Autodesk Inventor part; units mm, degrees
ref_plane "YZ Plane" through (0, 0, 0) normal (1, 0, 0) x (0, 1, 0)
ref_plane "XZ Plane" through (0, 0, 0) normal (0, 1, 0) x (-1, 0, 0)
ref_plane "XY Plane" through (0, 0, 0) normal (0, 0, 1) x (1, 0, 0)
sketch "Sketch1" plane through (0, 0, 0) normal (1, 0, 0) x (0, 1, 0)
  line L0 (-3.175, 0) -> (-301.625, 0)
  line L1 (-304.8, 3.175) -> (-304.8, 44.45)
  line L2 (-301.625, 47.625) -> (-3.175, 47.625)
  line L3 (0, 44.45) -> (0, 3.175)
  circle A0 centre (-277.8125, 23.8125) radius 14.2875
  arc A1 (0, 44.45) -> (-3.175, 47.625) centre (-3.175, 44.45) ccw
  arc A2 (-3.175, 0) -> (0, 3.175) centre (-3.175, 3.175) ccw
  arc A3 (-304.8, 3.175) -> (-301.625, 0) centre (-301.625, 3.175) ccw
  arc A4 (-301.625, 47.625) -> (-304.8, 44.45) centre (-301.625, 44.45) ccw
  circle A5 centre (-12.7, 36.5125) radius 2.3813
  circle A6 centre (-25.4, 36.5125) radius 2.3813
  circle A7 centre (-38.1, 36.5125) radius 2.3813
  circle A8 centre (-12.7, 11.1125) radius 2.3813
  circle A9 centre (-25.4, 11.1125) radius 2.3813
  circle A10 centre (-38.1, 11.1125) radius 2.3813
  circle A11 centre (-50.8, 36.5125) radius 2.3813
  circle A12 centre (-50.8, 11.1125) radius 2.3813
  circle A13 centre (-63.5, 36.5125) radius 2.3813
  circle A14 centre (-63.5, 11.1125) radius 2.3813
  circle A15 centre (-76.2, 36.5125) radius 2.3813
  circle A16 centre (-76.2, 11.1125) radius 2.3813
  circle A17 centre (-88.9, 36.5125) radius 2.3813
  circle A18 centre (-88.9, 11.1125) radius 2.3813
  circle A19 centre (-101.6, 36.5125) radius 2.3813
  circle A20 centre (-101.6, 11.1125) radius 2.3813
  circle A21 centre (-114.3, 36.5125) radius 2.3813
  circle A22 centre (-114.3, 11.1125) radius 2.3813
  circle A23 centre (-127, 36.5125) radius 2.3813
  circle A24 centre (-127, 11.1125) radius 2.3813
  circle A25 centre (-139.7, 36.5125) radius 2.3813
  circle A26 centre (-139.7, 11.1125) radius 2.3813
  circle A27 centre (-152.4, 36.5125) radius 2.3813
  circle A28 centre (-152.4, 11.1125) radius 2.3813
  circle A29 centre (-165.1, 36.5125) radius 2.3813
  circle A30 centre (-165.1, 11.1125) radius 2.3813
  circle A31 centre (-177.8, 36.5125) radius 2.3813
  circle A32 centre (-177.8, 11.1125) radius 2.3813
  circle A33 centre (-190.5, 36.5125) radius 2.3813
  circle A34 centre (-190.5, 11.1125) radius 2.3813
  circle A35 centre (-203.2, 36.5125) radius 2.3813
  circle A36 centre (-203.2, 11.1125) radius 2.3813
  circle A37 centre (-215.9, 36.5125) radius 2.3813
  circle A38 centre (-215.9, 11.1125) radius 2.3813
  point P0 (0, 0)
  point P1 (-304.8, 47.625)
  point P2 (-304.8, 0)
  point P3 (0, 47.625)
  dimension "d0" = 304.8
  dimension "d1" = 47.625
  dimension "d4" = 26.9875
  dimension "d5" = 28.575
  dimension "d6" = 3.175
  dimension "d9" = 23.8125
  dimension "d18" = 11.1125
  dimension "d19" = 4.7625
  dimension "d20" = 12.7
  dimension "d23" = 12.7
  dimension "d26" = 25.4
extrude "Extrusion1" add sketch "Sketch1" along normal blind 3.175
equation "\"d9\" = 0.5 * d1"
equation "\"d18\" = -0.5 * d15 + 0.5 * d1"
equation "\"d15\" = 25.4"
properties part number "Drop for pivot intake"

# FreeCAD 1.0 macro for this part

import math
import FreeCAD as App
import Part
import Sketcher
from FreeCAD import Vector
Q = App.Units.Quantity

doc = App.newDocument("Part")
body = doc.addObject("PartDesign::Body", "Body")

# Sketch on YZ plane
sketch1 = body.newObject("Sketcher::SketchObject", "Sketch")
sketch1.AttachmentSupport = (doc.getObject("YZ_Plane"), [""])
sketch1.MapMode = "FlatFace"
sketch1.addGeometry([
    Part.LineSegment(Vector(-301.625, 0, 0), Vector(-3.175, 0, 0)),  # 0
    Part.ArcOfCircle(Part.Circle(Vector(-3.175, 3.175, 0), Vector(0, 0, 1), 3.175), math.radians(-90), math.radians(0)),  # 1
    Part.LineSegment(Vector(0, 3.175, 0), Vector(0, 44.45, 0)),  # 2
    Part.ArcOfCircle(Part.Circle(Vector(-3.175, 44.45, 0), Vector(0, 0, 1), 3.175), math.radians(0), math.radians(90)),  # 3
    Part.LineSegment(Vector(-3.175, 47.625, 0), Vector(-301.625, 47.625, 0)),  # 4
    Part.ArcOfCircle(Part.Circle(Vector(-301.625, 44.45, 0), Vector(0, 0, 1), 3.175), math.radians(90), math.radians(180)),  # 5
    Part.LineSegment(Vector(-304.8, 44.45, 0), Vector(-304.8, 3.175, 0)),  # 6
    Part.ArcOfCircle(Part.Circle(Vector(-301.625, 3.175, 0), Vector(0, 0, 1), 3.175), math.radians(180), math.radians(270)),  # 7
    Part.Circle(Vector(-215.9, 11.1125, 0), Vector(0, 0, 1), 2.3813),  # 8
    Part.Circle(Vector(-203.2, 11.1125, 0), Vector(0, 0, 1), 2.3813),  # 9
    Part.Circle(Vector(-190.5, 11.1125, 0), Vector(0, 0, 1), 2.3813),  # 10
    Part.Circle(Vector(-177.8, 11.1125, 0), Vector(0, 0, 1), 2.3813),  # 11
    Part.Circle(Vector(-165.1, 11.1125, 0), Vector(0, 0, 1), 2.3813),  # 12
    Part.Circle(Vector(-152.4, 11.1125, 0), Vector(0, 0, 1), 2.3813),  # 13
    Part.Circle(Vector(-139.7, 11.1125, 0), Vector(0, 0, 1), 2.3813),  # 14
    Part.Circle(Vector(-127, 11.1125, 0), Vector(0, 0, 1), 2.3813),  # 15
    Part.Circle(Vector(-114.3, 11.1125, 0), Vector(0, 0, 1), 2.3813),  # 16
    Part.Circle(Vector(-101.6, 11.1125, 0), Vector(0, 0, 1), 2.3813),  # 17
    Part.Circle(Vector(-88.9, 11.1125, 0), Vector(0, 0, 1), 2.3813),  # 18
    Part.Circle(Vector(-76.2, 11.1125, 0), Vector(0, 0, 1), 2.3813),  # 19
    Part.Circle(Vector(-63.5, 11.1125, 0), Vector(0, 0, 1), 2.3813),  # 20
    Part.Circle(Vector(-50.8, 11.1125, 0), Vector(0, 0, 1), 2.3813),  # 21
    Part.Circle(Vector(-38.1, 11.1125, 0), Vector(0, 0, 1), 2.3813),  # 22
    Part.Circle(Vector(-25.4, 11.1125, 0), Vector(0, 0, 1), 2.3813),  # 23
    Part.Circle(Vector(-12.7, 11.1125, 0), Vector(0, 0, 1), 2.3813),  # 24
    Part.Circle(Vector(-277.8125, 23.8125, 0), Vector(0, 0, 1), 14.2875),  # 25
    Part.Circle(Vector(-215.9, 36.5125, 0), Vector(0, 0, 1), 2.3813),  # 26
    Part.Circle(Vector(-203.2, 36.5125, 0), Vector(0, 0, 1), 2.3813),  # 27
    Part.Circle(Vector(-190.5, 36.5125, 0), Vector(0, 0, 1), 2.3813),  # 28
    Part.Circle(Vector(-177.8, 36.5125, 0), Vector(0, 0, 1), 2.3813),  # 29
    Part.Circle(Vector(-165.1, 36.5125, 0), Vector(0, 0, 1), 2.3813),  # 30
    Part.Circle(Vector(-152.4, 36.5125, 0), Vector(0, 0, 1), 2.3813),  # 31
    Part.Circle(Vector(-139.7, 36.5125, 0), Vector(0, 0, 1), 2.3813),  # 32
    Part.Circle(Vector(-127, 36.5125, 0), Vector(0, 0, 1), 2.3813),  # 33
    Part.Circle(Vector(-114.3, 36.5125, 0), Vector(0, 0, 1), 2.3813),  # 34
    Part.Circle(Vector(-101.6, 36.5125, 0), Vector(0, 0, 1), 2.3813),  # 35
    Part.Circle(Vector(-88.9, 36.5125, 0), Vector(0, 0, 1), 2.3813),  # 36
    Part.Circle(Vector(-76.2, 36.5125, 0), Vector(0, 0, 1), 2.3813),  # 37
    Part.Circle(Vector(-63.5, 36.5125, 0), Vector(0, 0, 1), 2.3813),  # 38
    Part.Circle(Vector(-50.8, 36.5125, 0), Vector(0, 0, 1), 2.3813),  # 39
    Part.Circle(Vector(-38.1, 36.5125, 0), Vector(0, 0, 1), 2.3813),  # 40
    Part.Circle(Vector(-25.4, 36.5125, 0), Vector(0, 0, 1), 2.3813),  # 41
    Part.Circle(Vector(-12.7, 36.5125, 0), Vector(0, 0, 1), 2.3813),  # 42
], False)
sketch1.addConstraint([
    Sketcher.Constraint("Tangent", 0, 2, 1, 1),
    Sketcher.Constraint("Tangent", 1, 2, 2, 1),
    Sketcher.Constraint("Tangent", 2, 2, 3, 1),
    Sketcher.Constraint("Tangent", 3, 2, 4, 1),
    Sketcher.Constraint("Tangent", 4, 2, 5, 1),
    Sketcher.Constraint("Tangent", 5, 2, 6, 1),
    Sketcher.Constraint("Tangent", 6, 2, 7, 1),
    Sketcher.Constraint("Tangent", 7, 2, 0, 1),
    Sketcher.Constraint("Horizontal", 0),
    Sketcher.Constraint("Vertical", 2),
    Sketcher.Constraint("Horizontal", 4),
    Sketcher.Constraint("Vertical", 6),
    Sketcher.Constraint("Equal", 1, 3),
    Sketcher.Constraint("Equal", 3, 5),
    Sketcher.Constraint("Equal", 5, 7),
    Sketcher.Constraint("Equal", 8, 9),
    Sketcher.Constraint("Equal", 9, 10),
    Sketcher.Constraint("Equal", 10, 11),
    Sketcher.Constraint("Equal", 11, 12),
    Sketcher.Constraint("Equal", 12, 13),
    Sketcher.Constraint("Equal", 13, 14),
    Sketcher.Constraint("Equal", 14, 15),
    Sketcher.Constraint("Equal", 15, 16),
    Sketcher.Constraint("Equal", 16, 17),
    Sketcher.Constraint("Equal", 17, 18),
    Sketcher.Constraint("Equal", 18, 19),
    Sketcher.Constraint("Equal", 19, 20),
    Sketcher.Constraint("Equal", 20, 21),
    Sketcher.Constraint("Equal", 21, 22),
    Sketcher.Constraint("Equal", 22, 23),
    Sketcher.Constraint("Equal", 23, 24),
    Sketcher.Constraint("Equal", 24, 26),
    Sketcher.Constraint("Equal", 26, 27),
    Sketcher.Constraint("Equal", 27, 28),
    Sketcher.Constraint("Equal", 28, 29),
    Sketcher.Constraint("Equal", 29, 30),
    Sketcher.Constraint("Equal", 30, 31),
    Sketcher.Constraint("Equal", 31, 32),
    Sketcher.Constraint("Equal", 32, 33),
    Sketcher.Constraint("Equal", 33, 34),
    Sketcher.Constraint("Equal", 34, 35),
    Sketcher.Constraint("Equal", 35, 36),
    Sketcher.Constraint("Equal", 36, 37),
    Sketcher.Constraint("Equal", 37, 38),
    Sketcher.Constraint("Equal", 38, 39),
    Sketcher.Constraint("Equal", 39, 40),
    Sketcher.Constraint("Equal", 40, 41),
    Sketcher.Constraint("Equal", 41, 42),
    Sketcher.Constraint("PointOnObject", 0, 2, -1),
    Sketcher.Constraint("PointOnObject", 1, 2, -2),
    Sketcher.Constraint("Horizontal", 8, 3, 9, 3),
    Sketcher.Constraint("Horizontal", 9, 3, 10, 3),
    Sketcher.Constraint("Horizontal", 10, 3, 11, 3),
    Sketcher.Constraint("Horizontal", 11, 3, 12, 3),
    Sketcher.Constraint("Horizontal", 12, 3, 13, 3),
    Sketcher.Constraint("Horizontal", 13, 3, 14, 3),
    Sketcher.Constraint("Horizontal", 14, 3, 15, 3),
    Sketcher.Constraint("Horizontal", 15, 3, 16, 3),
    Sketcher.Constraint("Horizontal", 16, 3, 17, 3),
    Sketcher.Constraint("Horizontal", 17, 3, 18, 3),
    Sketcher.Constraint("Horizontal", 18, 3, 19, 3),
    Sketcher.Constraint("Horizontal", 19, 3, 20, 3),
    Sketcher.Constraint("Horizontal", 20, 3, 21, 3),
    Sketcher.Constraint("Horizontal", 21, 3, 22, 3),
    Sketcher.Constraint("Horizontal", 22, 3, 23, 3),
    Sketcher.Constraint("Horizontal", 23, 3, 24, 3),
    Sketcher.Constraint("Horizontal", 26, 3, 27, 3),
    Sketcher.Constraint("Horizontal", 27, 3, 28, 3),
    Sketcher.Constraint("Horizontal", 28, 3, 29, 3),
    Sketcher.Constraint("Horizontal", 29, 3, 30, 3),
    Sketcher.Constraint("Horizontal", 30, 3, 31, 3),
    Sketcher.Constraint("Horizontal", 31, 3, 32, 3),
    Sketcher.Constraint("Horizontal", 32, 3, 33, 3),
    Sketcher.Constraint("Horizontal", 33, 3, 34, 3),
    Sketcher.Constraint("Horizontal", 34, 3, 35, 3),
    Sketcher.Constraint("Horizontal", 35, 3, 36, 3),
    Sketcher.Constraint("Horizontal", 36, 3, 37, 3),
    Sketcher.Constraint("Horizontal", 37, 3, 38, 3),
    Sketcher.Constraint("Horizontal", 38, 3, 39, 3),
    Sketcher.Constraint("Horizontal", 39, 3, 40, 3),
    Sketcher.Constraint("Horizontal", 40, 3, 41, 3),
    Sketcher.Constraint("Horizontal", 41, 3, 42, 3),
    Sketcher.Constraint("Vertical", 8, 3, 26, 3),
    Sketcher.Constraint("Vertical", 9, 3, 27, 3),
    Sketcher.Constraint("Vertical", 10, 3, 28, 3),
    Sketcher.Constraint("Vertical", 11, 3, 29, 3),
    Sketcher.Constraint("Vertical", 12, 3, 30, 3),
    Sketcher.Constraint("Vertical", 13, 3, 31, 3),
    Sketcher.Constraint("Vertical", 14, 3, 32, 3),
    Sketcher.Constraint("Vertical", 15, 3, 33, 3),
    Sketcher.Constraint("Vertical", 16, 3, 34, 3),
    Sketcher.Constraint("Vertical", 17, 3, 35, 3),
    Sketcher.Constraint("Vertical", 18, 3, 36, 3),
    Sketcher.Constraint("Vertical", 19, 3, 37, 3),
    Sketcher.Constraint("Vertical", 20, 3, 38, 3),
    Sketcher.Constraint("Vertical", 21, 3, 39, 3),
    Sketcher.Constraint("Vertical", 22, 3, 40, 3),
    Sketcher.Constraint("Vertical", 23, 3, 41, 3),
    Sketcher.Constraint("Vertical", 24, 3, 42, 3),
    Sketcher.Constraint("Diameter", 8, Q("0.1875 in")),
    Sketcher.Constraint("Diameter", 25, Q("1.125 in")),
    Sketcher.Constraint("DistanceX", 23, 3, -1, 1, Q("1 in")),
    Sketcher.Constraint("DistanceX", 5, 2, -1, 1, Q("12 in")),
    Sketcher.Constraint("Radius", 1, Q("0.125 in")),
    Sketcher.Constraint("DistanceX", 8, 3, 10, 3, Q("1 in")),
    Sketcher.Constraint("DistanceX", 9, 3, 11, 3, Q("1 in")),
    Sketcher.Constraint("DistanceX", 10, 3, 12, 3, Q("1 in")),
    Sketcher.Constraint("DistanceX", 11, 3, 13, 3, Q("1 in")),
    Sketcher.Constraint("DistanceX", 12, 3, 14, 3, Q("1 in")),
    Sketcher.Constraint("DistanceX", 13, 3, 15, 3, Q("1 in")),
    Sketcher.Constraint("DistanceX", 14, 3, 16, 3, Q("1 in")),
    Sketcher.Constraint("DistanceX", 15, 3, 17, 3, Q("1 in")),
    Sketcher.Constraint("DistanceX", 16, 3, 18, 3, Q("1 in")),
    Sketcher.Constraint("DistanceX", 17, 3, 19, 3, Q("1 in")),
    Sketcher.Constraint("DistanceX", 18, 3, 20, 3, Q("1 in")),
    Sketcher.Constraint("DistanceX", 19, 3, 21, 3, Q("1 in")),
    Sketcher.Constraint("DistanceX", 20, 3, 22, 3, Q("1 in")),
    Sketcher.Constraint("DistanceX", 21, 3, 23, 3, Q("1 in")),
    Sketcher.Constraint("DistanceX", 22, 3, 24, 3, Q("1 in")),
    Sketcher.Constraint("DistanceY", 8, 3, 26, 3, Q("1 in")),
    Sketcher.Constraint("DistanceX", 24, 3, -1, 1, Q("0.5 in")),
    Sketcher.Constraint("DistanceY", 8, 3, 25, 3, Q("0.5 in")),
    Sketcher.Constraint("DistanceY", -1, 1, 8, 3, Q("0.4375 in")),
    Sketcher.Constraint("DistanceY", -1, 1, 3, 2, Q("1.875 in")),
    Sketcher.Constraint("DistanceX", 5, 3, 25, 3, Q("0.9375 in")),
])
pad1 = body.newObject("PartDesign::Pad", "Pad")
pad1.Profile = sketch1
pad1.Length = Q("0.125 in")

doc.recompute()
